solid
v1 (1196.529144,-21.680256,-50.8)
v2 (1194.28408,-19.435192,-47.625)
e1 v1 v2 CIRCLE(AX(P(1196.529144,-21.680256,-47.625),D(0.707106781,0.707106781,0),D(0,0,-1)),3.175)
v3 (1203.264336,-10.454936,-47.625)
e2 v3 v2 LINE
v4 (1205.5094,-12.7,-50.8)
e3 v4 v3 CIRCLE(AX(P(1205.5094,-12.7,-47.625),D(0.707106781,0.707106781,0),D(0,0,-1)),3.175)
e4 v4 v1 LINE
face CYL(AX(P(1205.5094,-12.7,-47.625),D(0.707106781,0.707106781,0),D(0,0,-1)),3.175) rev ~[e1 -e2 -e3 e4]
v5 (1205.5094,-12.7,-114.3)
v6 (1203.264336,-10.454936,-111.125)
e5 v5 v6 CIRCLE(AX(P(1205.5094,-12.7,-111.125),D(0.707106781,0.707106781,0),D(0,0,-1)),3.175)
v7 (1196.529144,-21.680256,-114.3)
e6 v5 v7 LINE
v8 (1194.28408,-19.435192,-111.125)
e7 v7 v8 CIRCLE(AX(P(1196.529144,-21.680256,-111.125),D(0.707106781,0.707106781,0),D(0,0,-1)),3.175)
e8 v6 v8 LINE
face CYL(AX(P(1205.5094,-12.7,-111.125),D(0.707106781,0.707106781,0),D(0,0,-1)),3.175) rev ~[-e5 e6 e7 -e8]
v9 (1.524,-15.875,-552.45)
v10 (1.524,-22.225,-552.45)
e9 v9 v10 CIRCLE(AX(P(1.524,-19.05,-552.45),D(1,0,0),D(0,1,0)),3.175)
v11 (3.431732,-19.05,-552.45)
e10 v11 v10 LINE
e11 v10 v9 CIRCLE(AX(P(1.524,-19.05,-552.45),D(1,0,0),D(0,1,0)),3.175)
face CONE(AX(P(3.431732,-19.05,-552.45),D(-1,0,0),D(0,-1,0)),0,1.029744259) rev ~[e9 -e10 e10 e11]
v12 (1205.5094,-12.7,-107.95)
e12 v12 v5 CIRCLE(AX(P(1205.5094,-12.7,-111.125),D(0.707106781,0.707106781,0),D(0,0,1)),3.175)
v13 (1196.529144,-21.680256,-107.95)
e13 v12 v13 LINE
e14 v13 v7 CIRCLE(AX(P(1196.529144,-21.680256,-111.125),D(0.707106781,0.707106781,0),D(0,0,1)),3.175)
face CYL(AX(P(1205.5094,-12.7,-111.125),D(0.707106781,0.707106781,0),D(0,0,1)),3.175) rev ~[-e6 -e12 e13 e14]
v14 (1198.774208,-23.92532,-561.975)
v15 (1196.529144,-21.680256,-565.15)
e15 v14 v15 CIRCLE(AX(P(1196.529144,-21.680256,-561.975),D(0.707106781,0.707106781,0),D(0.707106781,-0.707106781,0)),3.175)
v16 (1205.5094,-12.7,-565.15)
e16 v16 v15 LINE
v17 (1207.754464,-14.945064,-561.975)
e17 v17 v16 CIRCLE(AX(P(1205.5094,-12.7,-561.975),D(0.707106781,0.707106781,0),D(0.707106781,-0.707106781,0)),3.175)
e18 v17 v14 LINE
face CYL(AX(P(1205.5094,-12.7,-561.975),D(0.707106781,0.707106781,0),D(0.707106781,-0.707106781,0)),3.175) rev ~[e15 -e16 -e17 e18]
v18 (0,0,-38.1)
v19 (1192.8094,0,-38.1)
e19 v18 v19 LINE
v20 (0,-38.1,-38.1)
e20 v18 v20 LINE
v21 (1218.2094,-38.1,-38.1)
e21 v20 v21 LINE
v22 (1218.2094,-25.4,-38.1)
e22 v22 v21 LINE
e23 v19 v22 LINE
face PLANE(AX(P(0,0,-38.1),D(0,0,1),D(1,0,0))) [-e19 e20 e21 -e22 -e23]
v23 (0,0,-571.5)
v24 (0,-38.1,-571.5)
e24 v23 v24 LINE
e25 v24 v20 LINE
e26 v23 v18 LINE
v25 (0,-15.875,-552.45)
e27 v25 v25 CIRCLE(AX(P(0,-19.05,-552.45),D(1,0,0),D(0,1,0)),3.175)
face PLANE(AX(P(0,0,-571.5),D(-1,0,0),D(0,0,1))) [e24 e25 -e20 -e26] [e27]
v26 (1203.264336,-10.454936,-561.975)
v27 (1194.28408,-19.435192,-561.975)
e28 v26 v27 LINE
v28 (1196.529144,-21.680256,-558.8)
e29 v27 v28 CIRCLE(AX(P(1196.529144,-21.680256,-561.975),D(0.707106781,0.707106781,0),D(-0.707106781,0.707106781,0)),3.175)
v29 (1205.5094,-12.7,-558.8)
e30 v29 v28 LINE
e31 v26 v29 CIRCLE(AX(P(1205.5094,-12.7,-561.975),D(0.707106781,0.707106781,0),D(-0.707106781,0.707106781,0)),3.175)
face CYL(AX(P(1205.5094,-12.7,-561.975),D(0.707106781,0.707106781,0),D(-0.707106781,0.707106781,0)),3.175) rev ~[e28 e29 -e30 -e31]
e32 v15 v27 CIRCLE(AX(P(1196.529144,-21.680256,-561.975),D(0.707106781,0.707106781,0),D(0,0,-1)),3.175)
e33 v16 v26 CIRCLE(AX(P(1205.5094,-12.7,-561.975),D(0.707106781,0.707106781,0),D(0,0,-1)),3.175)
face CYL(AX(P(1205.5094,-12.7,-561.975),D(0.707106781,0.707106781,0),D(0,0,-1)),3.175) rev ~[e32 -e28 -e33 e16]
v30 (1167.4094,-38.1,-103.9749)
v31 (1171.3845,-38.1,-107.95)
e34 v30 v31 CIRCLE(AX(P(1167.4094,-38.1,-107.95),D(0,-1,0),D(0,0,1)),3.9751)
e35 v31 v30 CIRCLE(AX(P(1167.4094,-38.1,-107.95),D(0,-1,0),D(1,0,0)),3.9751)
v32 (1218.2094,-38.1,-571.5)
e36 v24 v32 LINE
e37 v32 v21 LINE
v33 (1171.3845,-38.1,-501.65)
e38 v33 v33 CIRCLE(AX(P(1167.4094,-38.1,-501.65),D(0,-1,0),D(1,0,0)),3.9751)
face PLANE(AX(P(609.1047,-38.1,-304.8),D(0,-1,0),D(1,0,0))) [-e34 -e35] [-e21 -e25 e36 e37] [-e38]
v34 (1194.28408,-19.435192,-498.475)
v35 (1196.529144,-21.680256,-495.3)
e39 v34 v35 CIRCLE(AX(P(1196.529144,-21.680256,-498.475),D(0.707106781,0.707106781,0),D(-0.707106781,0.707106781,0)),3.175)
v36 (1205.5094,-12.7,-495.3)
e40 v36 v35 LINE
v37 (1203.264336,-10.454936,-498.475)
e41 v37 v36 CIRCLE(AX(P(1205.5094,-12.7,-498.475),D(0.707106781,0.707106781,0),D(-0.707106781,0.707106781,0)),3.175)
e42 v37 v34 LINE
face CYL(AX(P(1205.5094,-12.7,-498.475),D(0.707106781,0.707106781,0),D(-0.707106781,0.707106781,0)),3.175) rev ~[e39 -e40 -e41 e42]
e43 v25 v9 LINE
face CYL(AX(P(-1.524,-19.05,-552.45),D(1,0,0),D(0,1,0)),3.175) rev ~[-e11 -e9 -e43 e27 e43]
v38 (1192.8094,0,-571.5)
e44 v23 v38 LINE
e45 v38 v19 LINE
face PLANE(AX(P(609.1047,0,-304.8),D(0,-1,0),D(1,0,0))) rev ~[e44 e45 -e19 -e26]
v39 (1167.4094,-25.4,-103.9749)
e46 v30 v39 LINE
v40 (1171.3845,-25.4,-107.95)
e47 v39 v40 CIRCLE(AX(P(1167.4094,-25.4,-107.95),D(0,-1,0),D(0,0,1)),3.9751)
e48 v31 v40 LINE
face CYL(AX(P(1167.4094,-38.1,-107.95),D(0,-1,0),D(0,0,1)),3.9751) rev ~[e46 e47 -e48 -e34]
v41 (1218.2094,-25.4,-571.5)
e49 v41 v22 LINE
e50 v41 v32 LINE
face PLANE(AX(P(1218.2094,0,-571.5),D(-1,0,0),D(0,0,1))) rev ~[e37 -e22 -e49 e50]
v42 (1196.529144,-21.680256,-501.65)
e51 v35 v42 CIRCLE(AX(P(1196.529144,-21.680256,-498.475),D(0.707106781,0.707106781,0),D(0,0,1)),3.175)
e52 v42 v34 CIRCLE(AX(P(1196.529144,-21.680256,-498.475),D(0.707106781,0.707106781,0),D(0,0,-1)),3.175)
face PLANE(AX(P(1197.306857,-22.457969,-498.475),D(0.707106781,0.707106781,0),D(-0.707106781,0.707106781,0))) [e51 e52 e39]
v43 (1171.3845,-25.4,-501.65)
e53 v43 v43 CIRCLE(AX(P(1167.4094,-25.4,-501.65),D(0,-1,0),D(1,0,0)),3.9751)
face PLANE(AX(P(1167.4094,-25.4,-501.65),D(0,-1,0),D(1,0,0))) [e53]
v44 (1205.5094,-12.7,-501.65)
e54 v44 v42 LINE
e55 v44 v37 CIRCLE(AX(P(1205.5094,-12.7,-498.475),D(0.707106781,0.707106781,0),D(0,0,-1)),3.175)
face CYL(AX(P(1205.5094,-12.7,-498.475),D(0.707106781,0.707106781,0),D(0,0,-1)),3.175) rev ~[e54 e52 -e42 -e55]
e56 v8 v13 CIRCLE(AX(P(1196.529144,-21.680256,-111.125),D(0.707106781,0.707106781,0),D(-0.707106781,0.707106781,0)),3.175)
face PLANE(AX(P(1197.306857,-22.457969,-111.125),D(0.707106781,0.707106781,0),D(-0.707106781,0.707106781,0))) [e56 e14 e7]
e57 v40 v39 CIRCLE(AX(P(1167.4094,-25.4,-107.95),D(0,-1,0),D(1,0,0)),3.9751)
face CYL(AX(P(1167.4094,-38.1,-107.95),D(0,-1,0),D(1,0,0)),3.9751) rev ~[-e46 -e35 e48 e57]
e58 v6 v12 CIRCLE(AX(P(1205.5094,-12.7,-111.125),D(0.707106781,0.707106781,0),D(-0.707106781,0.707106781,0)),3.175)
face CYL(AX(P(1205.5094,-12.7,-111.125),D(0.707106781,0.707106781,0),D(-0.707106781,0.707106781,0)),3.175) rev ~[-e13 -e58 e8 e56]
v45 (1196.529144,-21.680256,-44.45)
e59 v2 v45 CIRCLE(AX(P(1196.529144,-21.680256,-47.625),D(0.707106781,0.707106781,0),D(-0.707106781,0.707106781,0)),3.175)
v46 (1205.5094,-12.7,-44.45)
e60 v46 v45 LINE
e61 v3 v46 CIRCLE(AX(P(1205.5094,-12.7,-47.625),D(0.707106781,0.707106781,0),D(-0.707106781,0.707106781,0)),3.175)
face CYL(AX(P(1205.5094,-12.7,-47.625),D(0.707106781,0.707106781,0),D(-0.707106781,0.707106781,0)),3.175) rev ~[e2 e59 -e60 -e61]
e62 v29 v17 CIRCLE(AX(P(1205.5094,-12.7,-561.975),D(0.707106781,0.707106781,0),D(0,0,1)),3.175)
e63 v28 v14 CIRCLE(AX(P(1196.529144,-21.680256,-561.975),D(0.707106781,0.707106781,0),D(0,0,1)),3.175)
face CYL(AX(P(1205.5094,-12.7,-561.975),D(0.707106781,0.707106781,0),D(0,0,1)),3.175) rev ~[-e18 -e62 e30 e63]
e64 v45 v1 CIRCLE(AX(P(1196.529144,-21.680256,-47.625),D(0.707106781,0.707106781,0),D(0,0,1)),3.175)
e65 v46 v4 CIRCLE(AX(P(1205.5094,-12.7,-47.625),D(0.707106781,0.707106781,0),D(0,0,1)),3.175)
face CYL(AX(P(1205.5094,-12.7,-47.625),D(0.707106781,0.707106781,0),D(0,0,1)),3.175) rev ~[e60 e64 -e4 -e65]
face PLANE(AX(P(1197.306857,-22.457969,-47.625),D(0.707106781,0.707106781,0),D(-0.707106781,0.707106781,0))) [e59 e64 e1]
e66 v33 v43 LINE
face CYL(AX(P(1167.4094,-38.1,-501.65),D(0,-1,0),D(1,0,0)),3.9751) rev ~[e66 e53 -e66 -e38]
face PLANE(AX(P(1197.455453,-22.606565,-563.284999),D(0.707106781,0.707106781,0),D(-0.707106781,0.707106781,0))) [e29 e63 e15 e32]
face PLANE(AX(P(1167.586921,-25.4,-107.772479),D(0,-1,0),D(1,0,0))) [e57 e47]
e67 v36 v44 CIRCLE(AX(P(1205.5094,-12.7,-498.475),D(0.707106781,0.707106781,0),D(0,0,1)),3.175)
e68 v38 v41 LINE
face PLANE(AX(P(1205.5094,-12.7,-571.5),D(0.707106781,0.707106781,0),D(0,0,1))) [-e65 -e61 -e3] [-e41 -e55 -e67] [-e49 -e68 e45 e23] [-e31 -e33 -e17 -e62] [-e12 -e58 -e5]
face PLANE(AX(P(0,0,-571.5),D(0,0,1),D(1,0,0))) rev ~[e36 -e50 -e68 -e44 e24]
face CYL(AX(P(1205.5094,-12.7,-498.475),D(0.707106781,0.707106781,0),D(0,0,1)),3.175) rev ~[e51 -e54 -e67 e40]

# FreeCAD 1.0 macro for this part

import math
import FreeCAD as App
import Part
import Sketcher

V = App.Vector
Q = App.Units.Quantity


def edges_at(feature, points):
    """Names of the edges that pass closest to the given points."""
    edges = feature.Shape.Edges
    near = lambda p: min(range(len(edges)), key=lambda i: edges[i].distToShape(Part.Vertex(*p))[0])
    return sorted({f"Edge{near(p) + 1}" for p in points})


def add_polygon(sketch, points):
    """Adds a closed chain of lines whose ends are joined by coincident constraints."""
    first, n = sketch.GeometryCount, len(points)
    for a, b in zip(points, points[1:] + points[:1]):
        sketch.addGeometry(Part.LineSegment(App.Vector(*a, 0), App.Vector(*b, 0)), False)
    for i in range(n):
        sketch.addConstraint(Sketcher.Constraint("Coincident", first + i, 2, first + (i + 1) % n, 1))

doc = App.newDocument("Part")
params = doc.addObject("Spreadsheet::Sheet", "Params")
for row, (alias, value) in enumerate([
    ("sketch1_height", "21 in"),
    ("sketch1_width", "47.961 in"),
    ("pad1_length", "1.5 in"),
    ("sketch2_diameter", "0.25 in"),
    ("hole_diameter", "0.25 in"),
    ("hole_depth", "0.06 in"),
    ("chamfer_size", "1 in"),
    ("chamfer_size2", "1 in"),
    ("sketch3_radius", "0.125 in"),
    ("pocket1_length", "0.5 in"),
    ("sketch4_diameter", "0.313 in"),
    ("pocket2_length", "0.5 in"),
], start=1):
    params.set(f"A{row}", alias)
    params.set(f"B{row}", "=" + value)
    params.setAlias(f"B{row}", alias)

body = doc.addObject("PartDesign::Body", "Body")

# Sketch on XZ plane
sketch1 = body.newObject("Sketcher::SketchObject", "Sketch")
sketch1.AttachmentSupport = (doc.getObject("XZ_Plane"), [""])
sketch1.MapMode = "FlatFace"
add_polygon(sketch1, [(0, -38.1), (0, -571.5), (1218.2094, -571.5), (1218.2094, -38.1)])  # lines 0-3
sketch1.addConstraint(Sketcher.Constraint("Vertical", 0))
sketch1.addConstraint(Sketcher.Constraint("Horizontal", 1))
sketch1.addConstraint(Sketcher.Constraint("Vertical", 2))
sketch1.addConstraint(Sketcher.Constraint("Horizontal", 3))
sketch1.addConstraint(Sketcher.Constraint("PointOnObject", 0, 2, -2))
sketch1.addConstraint(Sketcher.Constraint("DistanceY", 0, 2, 0, 1, Q("21 in")))
sketch1.addConstraint(Sketcher.Constraint("DistanceY", 0, 2, -1, 1, Q("22.5 in")))
sketch1.addConstraint(Sketcher.Constraint("DistanceX", 1, 1, 1, 2, Q("47.961 in")))
sketch1.setExpression("Constraints[9]", "Params.sketch1_height")
sketch1.setExpression("Constraints[11]", "Params.sketch1_width")
pad1 = body.newObject("PartDesign::Pad", "Pad")
pad1.Profile = sketch1
pad1.setExpression("Length", "Params.pad1_length")

# Sketch on YZ plane
sketch2 = body.newObject("Sketcher::SketchObject", "Sketch001")
sketch2.AttachmentSupport = (doc.getObject("YZ_Plane"), [""])
sketch2.MapMode = "FlatFace"
sketch2.addGeometry(Part.Circle(V(-19.05, -552.45, 0), V(0, 0, 1), 3.175), False)
sketch2.addGeometry(Part.Circle(V(-19.05, -590.55, 0), V(0, 0, 1), 3.175), False)
sketch2.addConstraint(Sketcher.Constraint("Equal", 0, 1))
sketch2.addConstraint(Sketcher.Constraint("Vertical", 0, 3, 1, 3))
sketch2.addConstraint(Sketcher.Constraint("Diameter", 0, Q("0.25 in")))
sketch2.addConstraint(Sketcher.Constraint("DistanceY", 1, 3, 0, 3, Q("1.5 in")))
sketch2.addConstraint(Sketcher.Constraint("DistanceX", 0, 3, -1, 1, Q("0.75 in")))
sketch2.addConstraint(Sketcher.Constraint("DistanceY", 0, 3, -1, 1, Q("21.75 in")))
sketch2.setExpression("Constraints[2]", "Params.sketch2_diameter")
doc.recompute()
hole = body.newObject("PartDesign::Hole", "Hole")
hole.Profile = sketch2
hole.ThreadType = "None"
hole.setExpression("Diameter", "Params.hole_diameter")
hole.DepthType = "Dimension"
hole.setExpression("Depth", "Params.hole_depth")
hole.DrillPoint = "Angled"
hole.DrillPointAngle = 118
hole.Reversed = True
doc.recompute()

chamfer = body.newObject("PartDesign::Chamfer", "Chamfer")
chamfer.Base = (hole, edges_at(hole, [(1218.209, 0, -304.8)]))
chamfer.ChamferType = "Two distances"
chamfer.setExpression("Size", "Params.chamfer_size")
chamfer.setExpression("Size2", "Params.chamfer_size2")

# Sketch on an angled plane
sketch3 = body.newObject("Sketcher::SketchObject", "Sketch002")
sketch3.Placement = App.Placement(V(596.4047, 596.4047, 0), App.Rotation(V(-0.707106781, 0.707106781, 0), V(0, 0, 0.999999999), V(0.707106781, 0.707106781, 0), "ZXY"))
sketch3.addGeometry(Part.ArcOfCircle(Part.Circle(V(-861.404127, -561.974999, 0), V(0, 0, 1), 3.175), math.radians(180), math.radians(270)), False)
sketch3.addGeometry(Part.ArcOfCircle(Part.Circle(V(-861.404127, -561.974999, 0), V(0, 0, 1), 3.175), math.radians(-90), math.radians(0)), False)
sketch3.addGeometry(Part.ArcOfCircle(Part.Circle(V(-861.404127, -561.974999, 0), V(0, 0, 1), 3.175), math.radians(0), math.radians(90)), False)
sketch3.addGeometry(Part.ArcOfCircle(Part.Circle(V(-861.404127, -561.974999, 0), V(0, 0, 1), 3.175), math.radians(90), math.radians(180)), False)
sketch3.addGeometry(Part.ArcOfCircle(Part.Circle(V(-861.404127, -47.625, 0), V(0, 0, 1), 3.175), math.radians(90), math.radians(270)), False)
sketch3.addGeometry(Part.ArcOfCircle(Part.Circle(V(-861.404127, -47.625, 0), V(0, 0, 1), 3.175), math.radians(-90), math.radians(0)), False)
sketch3.addGeometry(Part.ArcOfCircle(Part.Circle(V(-861.404127, -47.625, 0), V(0, 0, 1), 3.175), math.radians(0), math.radians(90)), False)
sketch3.addGeometry(Part.ArcOfCircle(Part.Circle(V(-861.404127, -111.125, 0), V(0, 0, 1), 3.175), math.radians(90), math.radians(270)), False)
sketch3.addGeometry(Part.ArcOfCircle(Part.Circle(V(-861.404127, -111.125, 0), V(0, 0, 1), 3.175), math.radians(-90), math.radians(0)), False)
sketch3.addGeometry(Part.ArcOfCircle(Part.Circle(V(-861.404127, -111.125, 0), V(0, 0, 1), 3.175), math.radians(0), math.radians(90)), False)
sketch3.addGeometry(Part.ArcOfCircle(Part.Circle(V(-861.404127, -498.474999, 0), V(0, 0, 1), 3.175), math.radians(90), math.radians(270)), False)
sketch3.addGeometry(Part.ArcOfCircle(Part.Circle(V(-861.404127, -498.474999, 0), V(0, 0, 1), 3.175), math.radians(-90), math.radians(0)), False)
sketch3.addGeometry(Part.ArcOfCircle(Part.Circle(V(-861.404127, -498.474999, 0), V(0, 0, 1), 3.175), math.radians(0), math.radians(90)), False)
sketch3.addConstraint(Sketcher.Constraint("Tangent", 0, 2, 1, 1))
sketch3.addConstraint(Sketcher.Constraint("Tangent", 1, 2, 2, 1))
sketch3.addConstraint(Sketcher.Constraint("Tangent", 2, 2, 3, 1))
sketch3.addConstraint(Sketcher.Constraint("Tangent", 3, 2, 0, 1))
sketch3.addConstraint(Sketcher.Constraint("Tangent", 4, 2, 5, 1))
sketch3.addConstraint(Sketcher.Constraint("Tangent", 5, 2, 6, 1))
sketch3.addConstraint(Sketcher.Constraint("Tangent", 6, 2, 4, 1))
sketch3.addConstraint(Sketcher.Constraint("Tangent", 7, 2, 8, 1))
sketch3.addConstraint(Sketcher.Constraint("Tangent", 8, 2, 9, 1))
sketch3.addConstraint(Sketcher.Constraint("Tangent", 9, 2, 7, 1))
sketch3.addConstraint(Sketcher.Constraint("Tangent", 10, 2, 11, 1))
sketch3.addConstraint(Sketcher.Constraint("Tangent", 11, 2, 12, 1))
sketch3.addConstraint(Sketcher.Constraint("Tangent", 12, 2, 10, 1))
sketch3.addConstraint(Sketcher.Constraint("Equal", 0, 1))
sketch3.addConstraint(Sketcher.Constraint("Equal", 3, 4))
sketch3.addConstraint(Sketcher.Constraint("Equal", 6, 7))
sketch3.addConstraint(Sketcher.Constraint("Equal", 9, 10))
sketch3.addConstraint(Sketcher.Constraint("Horizontal", 3, 3, 1, 2))
sketch3.addConstraint(Sketcher.Constraint("Horizontal", 1, 2, 3, 2))
sketch3.addConstraint(Sketcher.Constraint("Horizontal", 6, 3, 5, 2))
sketch3.addConstraint(Sketcher.Constraint("Horizontal", 9, 3, 8, 2))
sketch3.addConstraint(Sketcher.Constraint("Horizontal", 12, 3, 11, 2))
sketch3.addConstraint(Sketcher.Constraint("Vertical", 3, 3, 4, 3))
sketch3.addConstraint(Sketcher.Constraint("Vertical", 6, 3, 7, 3))
sketch3.addConstraint(Sketcher.Constraint("Vertical", 9, 3, 10, 3))
sketch3.addConstraint(Sketcher.Constraint("Vertical", 12, 3, 0, 2))
sketch3.addConstraint(Sketcher.Constraint("Vertical", 0, 2, 2, 2))
sketch3.addConstraint(Sketcher.Constraint("Vertical", 2, 2, 4, 2))
sketch3.addConstraint(Sketcher.Constraint("Vertical", 4, 2, 6, 2))
sketch3.addConstraint(Sketcher.Constraint("Vertical", 6, 2, 7, 2))
sketch3.addConstraint(Sketcher.Constraint("Vertical", 7, 2, 9, 2))
sketch3.addConstraint(Sketcher.Constraint("Vertical", 9, 2, 10, 2))
sketch3.addConstraint(Sketcher.Constraint("Vertical", 10, 2, 12, 2))
sketch3.addConstraint(Sketcher.Constraint("DistanceY", 2, 2, -1, 1, Q("22 in")))
sketch3.addConstraint(Sketcher.Constraint("DistanceY", 4, 2, -1, 1, Q("2 in")))
sketch3.addConstraint(Sketcher.Constraint("Radius", 0, Q("0.125 in")))
sketch3.addConstraint(Sketcher.Constraint("DistanceY", 7, 2, -1, 1, Q("4.5 in")))
sketch3.addConstraint(Sketcher.Constraint("DistanceY", 12, 2, -1, 1, Q("19.5 in")))
sketch3.addConstraint(Sketcher.Constraint("DistanceX", 0, 3, -1, 1, 861.404127))
sketch3.setExpression("Constraints[35]", "Params.sketch3_radius")
pocket1 = body.newObject("PartDesign::Pocket", "Pocket")
pocket1.Profile = sketch3
pocket1.setExpression("Length", "Params.pocket1_length")

# Sketch on XZ plane
sketch4 = body.newObject("Sketcher::SketchObject", "Sketch003")
sketch4.AttachmentSupport = (doc.getObject("XZ_Plane"), [""])
sketch4.MapMode = "FlatFace"
sketch4.AttachmentOffset = App.Placement(V(0, 0, 1.5 * 25.4), App.Rotation())
sketch4.addGeometry(Part.ArcOfCircle(Part.Circle(V(1167.4094, -107.95, 0), V(0, 0, 1), 3.9751), math.radians(90), math.radians(360)), False)
sketch4.addGeometry(Part.ArcOfCircle(Part.Circle(V(1167.4094, -107.95, 0), V(0, 0, 1), 3.9751), math.radians(0), math.radians(90)), False)
sketch4.addGeometry(Part.Circle(V(1167.4094, -501.65, 0), V(0, 0, 1), 3.9751), False)
sketch4.addConstraint(Sketcher.Constraint("Tangent", 0, 1, 1, 2))
sketch4.addConstraint(Sketcher.Constraint("Coincident", 1, 1, 0, 2))
sketch4.addConstraint(Sketcher.Constraint("Equal", 1, 2))
sketch4.addConstraint(Sketcher.Constraint("Horizontal", 0, 3, 1, 1))
sketch4.addConstraint(Sketcher.Constraint("Vertical", 1, 3, 2, 3))
sketch4.addConstraint(Sketcher.Constraint("Vertical", 2, 3, 0, 1))
sketch4.addConstraint(Sketcher.Constraint("Diameter", 2, Q("0.313 in")))
sketch4.addConstraint(Sketcher.Constraint("DistanceY", 2, 3, 0, 3, Q("15.5 in")))
sketch4.addConstraint(Sketcher.Constraint("DistanceY", 0, 3, -1, 1, Q("4.25 in")))
sketch4.addConstraint(Sketcher.Constraint("DistanceX", -1, 1, 0, 3, Q("45.961 in")))
sketch4.setExpression("Constraints[6]", "Params.sketch4_diameter")
pocket2 = body.newObject("PartDesign::Pocket", "Pocket001")
pocket2.Profile = sketch4
pocket2.setExpression("Length", "Params.pocket2_length")

doc.recompute()
